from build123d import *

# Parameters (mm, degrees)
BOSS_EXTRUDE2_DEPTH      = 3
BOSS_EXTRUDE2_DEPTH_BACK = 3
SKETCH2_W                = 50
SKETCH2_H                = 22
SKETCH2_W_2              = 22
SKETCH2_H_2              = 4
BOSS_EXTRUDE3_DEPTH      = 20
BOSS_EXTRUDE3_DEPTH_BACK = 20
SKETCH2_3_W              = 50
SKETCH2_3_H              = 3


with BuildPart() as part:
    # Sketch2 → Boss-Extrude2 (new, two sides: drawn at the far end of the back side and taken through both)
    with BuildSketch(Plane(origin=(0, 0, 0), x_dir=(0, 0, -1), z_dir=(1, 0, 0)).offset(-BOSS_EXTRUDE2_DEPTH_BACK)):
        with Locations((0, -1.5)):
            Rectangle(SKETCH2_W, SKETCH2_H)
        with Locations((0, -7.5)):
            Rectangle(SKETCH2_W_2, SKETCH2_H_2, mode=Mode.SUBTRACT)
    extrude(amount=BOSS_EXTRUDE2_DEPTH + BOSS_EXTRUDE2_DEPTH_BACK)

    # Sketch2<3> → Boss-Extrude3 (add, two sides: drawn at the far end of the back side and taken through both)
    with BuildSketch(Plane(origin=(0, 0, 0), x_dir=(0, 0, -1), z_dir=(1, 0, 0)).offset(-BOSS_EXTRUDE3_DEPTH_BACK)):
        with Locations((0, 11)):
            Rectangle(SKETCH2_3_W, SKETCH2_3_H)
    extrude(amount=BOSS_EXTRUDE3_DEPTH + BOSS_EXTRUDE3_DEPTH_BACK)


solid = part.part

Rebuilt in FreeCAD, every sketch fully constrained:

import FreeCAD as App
import Part
import Sketcher


def add_polygon(sketch, points):
    """Adds a closed chain of lines whose ends are joined by coincident constraints."""
    first, n = sketch.GeometryCount, len(points)
    for a, b in zip(points, points[1:] + points[:1]):
        sketch.addGeometry(Part.LineSegment(App.Vector(*a, 0), App.Vector(*b, 0)), False)
    for i in range(n):
        sketch.addConstraint(Sketcher.Constraint("Coincident", first + i, 2, first + (i + 1) % n, 1))

doc = App.newDocument("Part")
body = doc.addObject("PartDesign::Body", "Body")

# Sketch on YZ plane
sketch1 = body.newObject("Sketcher::SketchObject", "Sketch")
sketch1.AttachmentSupport = (doc.getObject("YZ_Plane"), [""])
sketch1.MapMode = "FlatFace"
add_polygon(sketch1, [(9.5, 25), (-12.5, 25), (-12.5, -25), (9.5, -25)])  # lines 0-3
add_polygon(sketch1, [(-9.5, -11), (-9.5, 11), (-5.5, 11), (-5.5, -11)])  # lines 4-7
sketch1.addConstraint(Sketcher.Constraint("Horizontal", 0))
sketch1.addConstraint(Sketcher.Constraint("Vertical", 1))
sketch1.addConstraint(Sketcher.Constraint("Horizontal", 2))
sketch1.addConstraint(Sketcher.Constraint("Vertical", 3))
sketch1.addConstraint(Sketcher.Constraint("Vertical", 4))
sketch1.addConstraint(Sketcher.Constraint("Horizontal", 5))
sketch1.addConstraint(Sketcher.Constraint("Vertical", 6))
sketch1.addConstraint(Sketcher.Constraint("Horizontal", 7))
sketch1.addConstraint(Sketcher.Constraint("Equal", 2, 4))
sketch1.addConstraint(Sketcher.Constraint("DistanceX", 0, 2, 0, 1, 22.0))
sketch1.addConstraint(Sketcher.Constraint("DistanceX", 5, 1, 5, 2, 4.0))
sketch1.addConstraint(Sketcher.Constraint("DistanceY", 1, 2, 1, 1, 50.0))
sketch1.addConstraint(Sketcher.Constraint("DistanceY", -1, 1, 0, 2, 25.0))
sketch1.addConstraint(Sketcher.Constraint("DistanceY", -1, 1, 4, 2, 11.0))
sketch1.addConstraint(Sketcher.Constraint("DistanceX", 0, 2, 4, 2, 3.0))
sketch1.addConstraint(Sketcher.Constraint("DistanceX", 0, 2, -1, 1, 12.5))
pad1 = body.newObject("PartDesign::Pad", "Pad")
pad1.Profile = sketch1
pad1.Type = "TwoLengths"
pad1.Length = 3
pad1.Length2 = 3

# Sketch on YZ plane
sketch2 = body.newObject("Sketcher::SketchObject", "Sketch001")
sketch2.AttachmentSupport = (doc.getObject("YZ_Plane"), [""])
sketch2.MapMode = "FlatFace"
add_polygon(sketch2, [(12.5, 25), (9.5, 25), (9.5, -25), (12.5, -25)])  # lines 0-3
sketch2.addConstraint(Sketcher.Constraint("Horizontal", 0))
sketch2.addConstraint(Sketcher.Constraint("Vertical", 1))
sketch2.addConstraint(Sketcher.Constraint("Horizontal", 2))
sketch2.addConstraint(Sketcher.Constraint("Vertical", 3))
sketch2.addConstraint(Sketcher.Constraint("DistanceX", 0, 2, 0, 1, 3.0))
sketch2.addConstraint(Sketcher.Constraint("DistanceY", 1, 2, 1, 1, 50.0))
sketch2.addConstraint(Sketcher.Constraint("DistanceY", -1, 1, 0, 2, 25.0))
sketch2.addConstraint(Sketcher.Constraint("DistanceX", -1, 1, 0, 2, 9.5))
pad2 = body.newObject("PartDesign::Pad", "Pad001")
pad2.Profile = sketch2
pad2.Type = "TwoLengths"
pad2.Length = 20
pad2.Length2 = 20

doc.recompute()
